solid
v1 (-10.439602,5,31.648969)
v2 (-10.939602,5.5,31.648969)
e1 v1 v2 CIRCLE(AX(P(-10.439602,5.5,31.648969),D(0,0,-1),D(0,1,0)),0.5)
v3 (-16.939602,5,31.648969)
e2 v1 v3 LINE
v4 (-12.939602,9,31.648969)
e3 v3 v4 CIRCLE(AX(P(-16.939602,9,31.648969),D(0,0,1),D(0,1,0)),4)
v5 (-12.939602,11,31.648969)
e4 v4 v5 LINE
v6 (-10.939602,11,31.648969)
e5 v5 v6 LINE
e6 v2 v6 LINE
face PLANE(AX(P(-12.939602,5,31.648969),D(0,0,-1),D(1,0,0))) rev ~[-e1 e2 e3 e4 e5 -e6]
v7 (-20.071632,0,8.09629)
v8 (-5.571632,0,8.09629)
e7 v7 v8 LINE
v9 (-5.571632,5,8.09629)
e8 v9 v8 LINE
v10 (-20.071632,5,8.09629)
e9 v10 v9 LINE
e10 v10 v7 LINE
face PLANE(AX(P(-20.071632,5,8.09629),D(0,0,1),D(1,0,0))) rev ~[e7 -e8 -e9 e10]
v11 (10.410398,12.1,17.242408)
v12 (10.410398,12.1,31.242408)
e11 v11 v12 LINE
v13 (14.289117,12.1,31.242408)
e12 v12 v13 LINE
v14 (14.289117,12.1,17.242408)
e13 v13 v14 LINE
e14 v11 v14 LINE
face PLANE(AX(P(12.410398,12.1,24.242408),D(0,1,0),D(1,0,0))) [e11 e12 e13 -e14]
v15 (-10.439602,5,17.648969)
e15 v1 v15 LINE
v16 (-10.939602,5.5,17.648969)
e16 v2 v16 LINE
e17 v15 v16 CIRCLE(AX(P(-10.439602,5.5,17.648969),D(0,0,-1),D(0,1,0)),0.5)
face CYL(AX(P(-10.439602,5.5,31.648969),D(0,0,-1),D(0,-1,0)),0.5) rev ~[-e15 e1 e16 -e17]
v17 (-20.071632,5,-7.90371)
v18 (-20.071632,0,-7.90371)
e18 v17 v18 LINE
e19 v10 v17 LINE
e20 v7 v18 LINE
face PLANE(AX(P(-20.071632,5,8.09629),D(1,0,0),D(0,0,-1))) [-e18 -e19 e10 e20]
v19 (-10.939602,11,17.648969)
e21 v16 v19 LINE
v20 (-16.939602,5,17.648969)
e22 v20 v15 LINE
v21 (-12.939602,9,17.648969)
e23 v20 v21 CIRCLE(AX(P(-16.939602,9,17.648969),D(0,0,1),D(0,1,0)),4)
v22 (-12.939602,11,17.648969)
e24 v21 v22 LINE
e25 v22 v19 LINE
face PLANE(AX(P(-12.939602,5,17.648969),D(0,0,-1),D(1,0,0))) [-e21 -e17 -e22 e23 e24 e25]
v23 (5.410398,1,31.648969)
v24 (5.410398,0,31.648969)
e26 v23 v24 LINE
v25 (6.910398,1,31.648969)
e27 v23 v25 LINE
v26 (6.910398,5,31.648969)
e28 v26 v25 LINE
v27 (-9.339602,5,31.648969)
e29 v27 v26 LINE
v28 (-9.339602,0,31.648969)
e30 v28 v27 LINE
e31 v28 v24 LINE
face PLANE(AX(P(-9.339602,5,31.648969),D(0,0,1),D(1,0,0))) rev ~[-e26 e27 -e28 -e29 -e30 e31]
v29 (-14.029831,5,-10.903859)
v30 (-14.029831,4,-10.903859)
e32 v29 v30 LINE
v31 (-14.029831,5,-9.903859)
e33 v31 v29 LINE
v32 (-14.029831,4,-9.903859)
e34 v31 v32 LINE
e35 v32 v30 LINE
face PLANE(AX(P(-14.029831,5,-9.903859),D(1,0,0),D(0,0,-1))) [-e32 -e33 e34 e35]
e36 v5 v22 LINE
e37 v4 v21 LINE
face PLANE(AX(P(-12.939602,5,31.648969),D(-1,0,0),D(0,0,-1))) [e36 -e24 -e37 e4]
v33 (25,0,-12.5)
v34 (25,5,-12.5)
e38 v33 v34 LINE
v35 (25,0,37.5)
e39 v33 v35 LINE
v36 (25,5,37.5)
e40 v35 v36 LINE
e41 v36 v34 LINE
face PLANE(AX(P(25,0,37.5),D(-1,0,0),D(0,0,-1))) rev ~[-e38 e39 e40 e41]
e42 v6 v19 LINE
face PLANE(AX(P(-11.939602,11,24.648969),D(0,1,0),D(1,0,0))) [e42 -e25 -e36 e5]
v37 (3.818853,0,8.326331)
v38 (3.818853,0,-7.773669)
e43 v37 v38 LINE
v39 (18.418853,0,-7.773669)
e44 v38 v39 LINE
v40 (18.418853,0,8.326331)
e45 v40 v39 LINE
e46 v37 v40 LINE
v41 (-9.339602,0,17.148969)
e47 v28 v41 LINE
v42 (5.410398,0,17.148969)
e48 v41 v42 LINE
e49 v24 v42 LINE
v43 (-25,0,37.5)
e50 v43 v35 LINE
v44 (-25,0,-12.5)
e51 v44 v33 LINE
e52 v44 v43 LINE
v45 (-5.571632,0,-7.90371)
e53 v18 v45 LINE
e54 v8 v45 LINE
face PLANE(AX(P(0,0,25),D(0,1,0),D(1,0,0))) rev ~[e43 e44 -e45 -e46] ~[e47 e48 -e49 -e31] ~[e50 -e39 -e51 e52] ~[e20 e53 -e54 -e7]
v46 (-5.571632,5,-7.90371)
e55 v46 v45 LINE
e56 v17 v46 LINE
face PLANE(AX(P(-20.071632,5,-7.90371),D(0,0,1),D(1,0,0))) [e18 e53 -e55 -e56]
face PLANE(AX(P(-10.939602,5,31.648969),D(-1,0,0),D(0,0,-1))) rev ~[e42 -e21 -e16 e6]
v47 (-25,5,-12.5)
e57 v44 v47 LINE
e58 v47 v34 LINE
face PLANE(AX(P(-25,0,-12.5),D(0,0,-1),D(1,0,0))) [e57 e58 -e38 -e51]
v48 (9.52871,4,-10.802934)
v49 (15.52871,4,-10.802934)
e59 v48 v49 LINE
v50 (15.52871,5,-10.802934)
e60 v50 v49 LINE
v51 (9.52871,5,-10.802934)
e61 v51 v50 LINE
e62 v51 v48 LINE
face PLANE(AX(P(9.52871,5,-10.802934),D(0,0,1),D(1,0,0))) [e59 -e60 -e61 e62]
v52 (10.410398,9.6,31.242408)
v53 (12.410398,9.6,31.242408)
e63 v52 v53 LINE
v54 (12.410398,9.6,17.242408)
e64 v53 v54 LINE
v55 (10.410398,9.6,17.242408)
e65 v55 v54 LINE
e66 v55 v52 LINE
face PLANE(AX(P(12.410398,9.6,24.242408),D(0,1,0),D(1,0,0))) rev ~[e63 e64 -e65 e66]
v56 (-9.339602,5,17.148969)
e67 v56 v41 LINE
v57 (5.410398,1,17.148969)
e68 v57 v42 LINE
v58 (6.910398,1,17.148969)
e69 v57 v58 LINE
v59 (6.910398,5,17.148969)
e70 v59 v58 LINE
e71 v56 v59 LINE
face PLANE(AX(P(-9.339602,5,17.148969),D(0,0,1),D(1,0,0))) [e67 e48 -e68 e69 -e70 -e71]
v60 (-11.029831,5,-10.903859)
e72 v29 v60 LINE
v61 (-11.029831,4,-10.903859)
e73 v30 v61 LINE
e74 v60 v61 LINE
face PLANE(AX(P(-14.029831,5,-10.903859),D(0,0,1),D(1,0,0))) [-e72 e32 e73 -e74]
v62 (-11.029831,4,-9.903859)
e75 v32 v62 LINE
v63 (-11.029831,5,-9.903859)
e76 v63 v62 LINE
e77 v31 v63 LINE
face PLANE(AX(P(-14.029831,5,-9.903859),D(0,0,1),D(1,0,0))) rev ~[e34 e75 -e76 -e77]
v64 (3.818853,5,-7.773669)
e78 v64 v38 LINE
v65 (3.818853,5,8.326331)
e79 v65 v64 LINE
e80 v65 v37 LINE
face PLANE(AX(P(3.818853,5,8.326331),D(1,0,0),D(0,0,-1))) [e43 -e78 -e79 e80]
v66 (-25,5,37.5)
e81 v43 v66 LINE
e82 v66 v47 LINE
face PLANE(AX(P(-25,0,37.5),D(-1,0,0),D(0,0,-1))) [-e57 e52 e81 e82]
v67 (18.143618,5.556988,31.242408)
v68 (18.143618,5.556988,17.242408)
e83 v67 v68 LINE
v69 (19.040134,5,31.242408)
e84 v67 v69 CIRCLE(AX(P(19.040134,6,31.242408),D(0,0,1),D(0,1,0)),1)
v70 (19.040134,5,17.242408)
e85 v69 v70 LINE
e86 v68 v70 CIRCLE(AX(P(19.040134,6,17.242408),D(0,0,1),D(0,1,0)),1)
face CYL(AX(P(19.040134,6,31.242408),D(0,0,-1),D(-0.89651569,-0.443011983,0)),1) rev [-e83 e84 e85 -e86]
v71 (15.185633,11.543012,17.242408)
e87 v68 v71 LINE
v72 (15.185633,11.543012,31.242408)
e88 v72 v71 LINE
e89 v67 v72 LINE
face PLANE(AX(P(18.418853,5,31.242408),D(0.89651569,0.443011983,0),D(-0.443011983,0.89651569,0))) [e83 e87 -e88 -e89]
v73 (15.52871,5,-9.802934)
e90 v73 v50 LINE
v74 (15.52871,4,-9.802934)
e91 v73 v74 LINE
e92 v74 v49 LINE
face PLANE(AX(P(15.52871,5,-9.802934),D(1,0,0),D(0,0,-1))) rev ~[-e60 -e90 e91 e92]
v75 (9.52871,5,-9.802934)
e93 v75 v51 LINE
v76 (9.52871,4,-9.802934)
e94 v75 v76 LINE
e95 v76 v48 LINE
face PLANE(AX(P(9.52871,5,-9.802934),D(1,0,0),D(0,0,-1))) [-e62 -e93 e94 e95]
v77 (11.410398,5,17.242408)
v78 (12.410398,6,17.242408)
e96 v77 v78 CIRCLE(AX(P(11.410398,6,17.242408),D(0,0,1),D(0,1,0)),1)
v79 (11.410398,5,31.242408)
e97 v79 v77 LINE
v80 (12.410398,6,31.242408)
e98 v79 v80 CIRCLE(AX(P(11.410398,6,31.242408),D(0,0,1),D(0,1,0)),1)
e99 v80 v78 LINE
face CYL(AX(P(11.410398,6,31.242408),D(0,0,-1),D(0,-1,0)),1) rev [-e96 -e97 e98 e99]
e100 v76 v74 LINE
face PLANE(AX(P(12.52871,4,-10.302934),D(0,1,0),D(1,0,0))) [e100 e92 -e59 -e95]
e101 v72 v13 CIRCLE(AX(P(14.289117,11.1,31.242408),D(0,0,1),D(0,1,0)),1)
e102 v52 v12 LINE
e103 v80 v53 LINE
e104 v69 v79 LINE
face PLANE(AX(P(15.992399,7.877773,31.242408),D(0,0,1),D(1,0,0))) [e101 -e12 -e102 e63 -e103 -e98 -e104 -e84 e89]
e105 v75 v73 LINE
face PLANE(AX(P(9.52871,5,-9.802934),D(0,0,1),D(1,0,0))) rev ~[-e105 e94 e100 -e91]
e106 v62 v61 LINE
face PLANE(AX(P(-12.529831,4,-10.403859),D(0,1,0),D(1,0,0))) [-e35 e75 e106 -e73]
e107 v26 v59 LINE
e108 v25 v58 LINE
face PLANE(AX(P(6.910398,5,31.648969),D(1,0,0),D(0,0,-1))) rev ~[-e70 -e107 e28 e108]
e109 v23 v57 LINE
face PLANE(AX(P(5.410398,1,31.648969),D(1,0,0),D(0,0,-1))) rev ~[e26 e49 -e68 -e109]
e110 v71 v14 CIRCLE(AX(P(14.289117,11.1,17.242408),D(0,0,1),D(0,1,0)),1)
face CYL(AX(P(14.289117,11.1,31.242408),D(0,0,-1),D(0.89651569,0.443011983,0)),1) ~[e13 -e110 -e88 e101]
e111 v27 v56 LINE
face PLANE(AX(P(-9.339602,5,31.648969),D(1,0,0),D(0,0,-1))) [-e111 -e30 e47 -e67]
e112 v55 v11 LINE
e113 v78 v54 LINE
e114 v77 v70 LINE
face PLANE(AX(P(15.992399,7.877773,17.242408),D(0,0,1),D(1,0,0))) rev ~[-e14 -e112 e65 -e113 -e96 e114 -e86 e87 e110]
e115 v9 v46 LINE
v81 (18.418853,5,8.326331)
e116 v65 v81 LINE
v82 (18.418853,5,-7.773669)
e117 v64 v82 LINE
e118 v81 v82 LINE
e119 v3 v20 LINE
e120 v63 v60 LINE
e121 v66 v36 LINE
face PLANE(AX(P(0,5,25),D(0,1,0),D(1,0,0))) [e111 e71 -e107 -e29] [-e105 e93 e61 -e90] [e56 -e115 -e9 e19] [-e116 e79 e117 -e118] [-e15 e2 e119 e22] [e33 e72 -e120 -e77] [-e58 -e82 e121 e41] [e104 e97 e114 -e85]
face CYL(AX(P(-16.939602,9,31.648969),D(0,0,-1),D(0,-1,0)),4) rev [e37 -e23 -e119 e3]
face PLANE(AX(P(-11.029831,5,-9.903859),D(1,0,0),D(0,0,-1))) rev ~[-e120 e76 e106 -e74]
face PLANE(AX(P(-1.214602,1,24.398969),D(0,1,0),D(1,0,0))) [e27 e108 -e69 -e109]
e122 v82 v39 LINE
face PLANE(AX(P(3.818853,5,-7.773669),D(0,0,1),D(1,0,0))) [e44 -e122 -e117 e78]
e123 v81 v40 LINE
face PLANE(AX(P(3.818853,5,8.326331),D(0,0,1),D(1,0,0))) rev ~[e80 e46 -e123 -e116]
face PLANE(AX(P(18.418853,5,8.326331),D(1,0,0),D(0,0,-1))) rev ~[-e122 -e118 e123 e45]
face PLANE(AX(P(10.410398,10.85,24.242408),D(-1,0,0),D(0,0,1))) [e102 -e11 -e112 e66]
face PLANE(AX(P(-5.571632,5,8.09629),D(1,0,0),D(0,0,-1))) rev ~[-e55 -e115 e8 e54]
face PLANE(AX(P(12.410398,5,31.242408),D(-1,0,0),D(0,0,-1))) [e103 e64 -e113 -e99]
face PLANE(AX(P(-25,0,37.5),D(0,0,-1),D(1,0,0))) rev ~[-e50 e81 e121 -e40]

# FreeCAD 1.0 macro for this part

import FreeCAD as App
import Part
import Sketcher
Q = App.Units.Quantity


def edges_at(feature, points):
    """Names of the edges that pass closest to the given points."""
    edges = feature.Shape.Edges
    near = lambda p: min(range(len(edges)), key=lambda i: edges[i].distToShape(Part.Vertex(*p))[0])
    return sorted({f"Edge{near(p) + 1}" for p in points})


def add_polygon(sketch, points):
    """Adds a closed chain of lines whose ends are joined by coincident constraints."""
    first, n = sketch.GeometryCount, len(points)
    for a, b in zip(points, points[1:] + points[:1]):
        sketch.addGeometry(Part.LineSegment(App.Vector(*a, 0), App.Vector(*b, 0)), False)
    for i in range(n):
        sketch.addConstraint(Sketcher.Constraint("Coincident", first + i, 2, first + (i + 1) % n, 1))

doc = App.newDocument("Part")
body = doc.addObject("PartDesign::Body", "Body")

# Sketch on XZ plane
sketch1 = doc.addObject("Sketcher::SketchObject", "Sketch")
body.addObject(sketch1)
sketch1.AttachmentSupport = (doc.XZ_Plane, [""])
sketch1.MapMode = "FlatFace"
add_polygon(sketch1, [(-25, -12), (-25, 12), (25, 12), (25, -12)])  # lines 0-3
sketch1.addConstraint([
    Sketcher.Constraint("Vertical", 0),
    Sketcher.Constraint("Horizontal", 1),
    Sketcher.Constraint("Vertical", 2),
    Sketcher.Constraint("Horizontal", 3),
    Sketcher.Constraint("Symmetric", 0, 2, 2, 2, -1, 1),
    Sketcher.Constraint("DistanceX", 1, 1, 1, 2, Q("50 mm")),
    Sketcher.Constraint("DistanceY", 0, 1, 0, 2, Q("25 mm")),
])
pad1 = doc.addObject("PartDesign::Pad", "Pad")
body.addObject(pad1)
pad1.Profile = sketch1
pad1.Length = 5
pad1.Reversed = True

# Sketch on XZ plane
sketch2 = doc.addObject("Sketcher::SketchObject", "Sketch001")
body.addObject(sketch2)
sketch2.AttachmentSupport = (doc.XZ_Plane, [""])
sketch2.MapMode = "FlatFace"
sketch2.AttachmentOffset = App.Placement(App.Vector(0, 0, -5), App.Rotation())
add_polygon(sketch2, [(-20, -8), (-20, 8), (-6, 8), (-6, -8)])  # lines 0-3
sketch2.addConstraint([
    Sketcher.Constraint("Vertical", 0),
    Sketcher.Constraint("Horizontal", 1),
    Sketcher.Constraint("Vertical", 2),
    Sketcher.Constraint("Horizontal", 3),
    Sketcher.Constraint("DistanceY", 0, 1, 0, 2, Q("16 mm")),
    Sketcher.Constraint("DistanceX", 1, 1, 1, 2, Q("14.5 mm")),
    Sketcher.Constraint("DistanceY", -1, 1, 0, 2, Q("8.09629 mm")),
    Sketcher.Constraint("DistanceX", 0, 2, -1, 1, Q("20.071632 mm")),
])
pocket1 = doc.addObject("PartDesign::Pocket", "Pocket")
body.addObject(pocket1)
pocket1.Profile = sketch2
pocket1.Length = 5
pocket1.Reversed = True

# Sketch on XZ plane
sketch3 = doc.addObject("Sketcher::SketchObject", "Sketch002")
body.addObject(sketch3)
sketch3.AttachmentSupport = (doc.XZ_Plane, [""])
sketch3.MapMode = "FlatFace"
sketch3.AttachmentOffset = App.Placement(App.Vector(0, 0, -5), App.Rotation())
add_polygon(sketch3, [(4, -8), (4, 8), (18, 8), (18, -8)])  # lines 0-3
sketch3.addConstraint([
    Sketcher.Constraint("Vertical", 0),
    Sketcher.Constraint("Horizontal", 1),
    Sketcher.Constraint("Vertical", 2),
    Sketcher.Constraint("Horizontal", 3),
    Sketcher.Constraint("DistanceX", 1, 1, 1, 2, Q("14.6 mm")),
    Sketcher.Constraint("DistanceY", 0, 1, 0, 2, Q("16.1 mm")),
    Sketcher.Constraint("DistanceY", -1, 1, 0, 2, Q("8.326331 mm")),
    Sketcher.Constraint("DistanceX", -1, 1, 0, 2, Q("3.818853 mm")),
])
pocket2 = doc.addObject("PartDesign::Pocket", "Pocket001")
body.addObject(pocket2)
pocket2.Profile = sketch3
pocket2.Length = 5
pocket2.Reversed = True

# Sketch on XZ plane
sketch4 = doc.addObject("Sketcher::SketchObject", "Sketch003")
body.addObject(sketch4)
sketch4.AttachmentSupport = (doc.XZ_Plane, [""])
sketch4.MapMode = "FlatFace"
sketch4.AttachmentOffset = App.Placement(App.Vector(0, 0, -5), App.Rotation())
add_polygon(sketch4, [(-14, -10.9), (-14, -9.9), (-11, -9.9), (-11, -10.9)])  # lines 0-3
add_polygon(sketch4, [(9.5, -10.8), (9.5, -9.8), (15.5, -9.8), (15.5, -10.8)])  # lines 4-7
sketch4.addConstraint([
    Sketcher.Constraint("Vertical", 0),
    Sketcher.Constraint("Horizontal", 1),
    Sketcher.Constraint("Vertical", 2),
    Sketcher.Constraint("Horizontal", 3),
    Sketcher.Constraint("Vertical", 4),
    Sketcher.Constraint("Horizontal", 5),
    Sketcher.Constraint("Vertical", 6),
    Sketcher.Constraint("Horizontal", 7),
    Sketcher.Constraint("Equal", 2, 4),
    Sketcher.Constraint("DistanceX", 1, 1, 1, 2, Q("3 mm")),
    Sketcher.Constraint("DistanceX", 5, 1, 5, 2, Q("6 mm")),
    Sketcher.Constraint("DistanceY", 0, 1, 0, 2, Q("1 mm")),
    Sketcher.Constraint("DistanceX", 0, 2, -1, 1, Q("14.029831 mm")),
    Sketcher.Constraint("DistanceY", 0, 2, -1, 1, Q("9.903859 mm")),
    Sketcher.Constraint("DistanceX", -1, 1, 4, 2, Q("9.52871 mm")),
    Sketcher.Constraint("DistanceY", 4, 2, -1, 1, Q("9.802934 mm")),
])
pocket3 = doc.addObject("PartDesign::Pocket", "Pocket002")
body.addObject(pocket3)
pocket3.Profile = sketch4
pocket3.Length = 1
pocket3.Reversed = True

# Sketch on XZ plane
sketch5 = doc.addObject("Sketcher::SketchObject", "Sketch004")
body.addObject(sketch5)
sketch5.AttachmentSupport = (doc.XZ_Plane, [""])
sketch5.MapMode = "FlatFace"
add_polygon(sketch5, [(-25, 12), (-25, 38), (25, 38), (25, 12)])  # lines 0-3
sketch5.addConstraint([
    Sketcher.Constraint("Vertical", 0),
    Sketcher.Constraint("Horizontal", 1),
    Sketcher.Constraint("Vertical", 2),
    Sketcher.Constraint("Horizontal", 3),
    Sketcher.Constraint("DistanceX", 1, 1, 1, 2, Q("50 mm")),
    Sketcher.Constraint("DistanceY", 0, 1, 0, 2, Q("25 mm")),
    Sketcher.Constraint("DistanceX", 0, 2, -1, 1, Q("25 mm")),
    Sketcher.Constraint("DistanceY", -1, 1, 0, 2, Q("37.5 mm")),
])
pad2 = doc.addObject("PartDesign::Pad", "Pad001")
body.addObject(pad2)
pad2.Profile = sketch5
pad2.Length = 5
pad2.Reversed = True

# Sketch on XZ plane
sketch6 = doc.addObject("Sketcher::SketchObject", "Sketch005")
body.addObject(sketch6)
sketch6.AttachmentSupport = (doc.XZ_Plane, [""])
sketch6.MapMode = "FlatFace"
sketch6.AttachmentOffset = App.Placement(App.Vector(0, 0, -5), App.Rotation())
add_polygon(sketch6, [(-9, 17), (-9, 32), (7, 32), (7, 17)])  # lines 0-3
sketch6.addConstraint([
    Sketcher.Constraint("Vertical", 0),
    Sketcher.Constraint("Horizontal", 1),
    Sketcher.Constraint("Vertical", 2),
    Sketcher.Constraint("Horizontal", 3),
    Sketcher.Constraint("DistanceY", 0, 1, 0, 2, Q("14.5 mm")),
    Sketcher.Constraint("DistanceX", 1, 1, 1, 2, Q("16.25 mm")),
    Sketcher.Constraint("DistanceX", 0, 2, -1, 1, Q("9.339602 mm")),
    Sketcher.Constraint("DistanceY", -1, 1, 0, 2, Q("31.648969 mm")),
])
pocket4 = doc.addObject("PartDesign::Pocket", "Pocket003")
body.addObject(pocket4)
pocket4.Profile = sketch6
pocket4.Length = 4
pocket4.Reversed = True

# Sketch on XZ plane
sketch7 = doc.addObject("Sketcher::SketchObject", "Sketch006")
body.addObject(sketch7)
sketch7.AttachmentSupport = (doc.XZ_Plane, [""])
sketch7.MapMode = "FlatFace"
sketch7.AttachmentOffset = App.Placement(App.Vector(0, 0, -1), App.Rotation())
add_polygon(sketch7, [(-9, 17), (-9, 32), (5, 32), (5, 17)])  # lines 0-3
sketch7.addConstraint([
    Sketcher.Constraint("Vertical", 0),
    Sketcher.Constraint("Horizontal", 1),
    Sketcher.Constraint("Vertical", 2),
    Sketcher.Constraint("Horizontal", 3),
    Sketcher.Constraint("DistanceY", 0, 1, 0, 2, Q("14.5 mm")),
    Sketcher.Constraint("DistanceX", 1, 1, 1, 2, Q("14.75 mm")),
    Sketcher.Constraint("DistanceX", 0, 2, -1, 1, Q("9.339602 mm")),
    Sketcher.Constraint("DistanceY", -1, 1, 0, 2, Q("31.648969 mm")),
])
pocket5 = doc.addObject("PartDesign::Pocket", "Pocket004")
body.addObject(pocket5)
pocket5.Profile = sketch7
pocket5.Length = 1
pocket5.Reversed = True

# Sketch on XZ plane
sketch8 = doc.addObject("Sketcher::SketchObject", "Sketch007")
body.addObject(sketch8)
sketch8.AttachmentSupport = (doc.XZ_Plane, [""])
sketch8.MapMode = "FlatFace"
sketch8.AttachmentOffset = App.Placement(App.Vector(0, 0, -5), App.Rotation())
add_polygon(sketch8, [(12.4, 17.2), (12.4, 31.2), (14.9, 31.2), (14.9, 17.2)])  # lines 0-3
sketch8.addConstraint([
    Sketcher.Constraint("Vertical", 0),
    Sketcher.Constraint("Horizontal", 1),
    Sketcher.Constraint("Vertical", 2),
    Sketcher.Constraint("Horizontal", 3),
    Sketcher.Constraint("DistanceY", 0, 1, 0, 2, Q("14 mm")),
    Sketcher.Constraint("DistanceX", 1, 1, 1, 2, Q("2.5 mm")),
    Sketcher.Constraint("DistanceX", -1, 1, 0, 2, Q("12.410398 mm")),
    Sketcher.Constraint("DistanceY", -1, 1, 0, 2, Q("31.242408 mm")),
])
pad3 = doc.addObject("PartDesign::Pad", "Pad002")
body.addObject(pad3)
pad3.Profile = sketch8
pad3.Length = 4.6
pad3.Reversed = True

# Sketch on XZ plane
sketch9 = doc.addObject("Sketcher::SketchObject", "Sketch008")
body.addObject(sketch9)
sketch9.AttachmentSupport = (doc.XZ_Plane, [""])
sketch9.MapMode = "FlatFace"
sketch9.AttachmentOffset = App.Placement(App.Vector(0, 0, -9.6), App.Rotation())
add_polygon(sketch9, [(10, 17), (10, 31), (15, 31), (15, 17)])  # lines 0-3
sketch9.addConstraint([
    Sketcher.Constraint("Vertical", 0),
    Sketcher.Constraint("Horizontal", 1),
    Sketcher.Constraint("Vertical", 2),
    Sketcher.Constraint("Horizontal", 3),
    Sketcher.Constraint("DistanceX", 1, 1, 1, 2, Q("5 mm")),
    Sketcher.Constraint("DistanceY", 0, 1, 0, 2, Q("14 mm")),
    Sketcher.Constraint("DistanceX", -1, 1, 0, 2, Q("9.910398 mm")),
    Sketcher.Constraint("DistanceY", -1, 1, 0, 2, Q("31.242408 mm")),
])
pad4 = doc.addObject("PartDesign::Pad", "Pad003")
body.addObject(pad4)
pad4.Profile = sketch9
pad4.Length = 2.5
pad4.Reversed = True

# Sketch on XY plane
sketch10 = doc.addObject("Sketcher::SketchObject", "Sketch009")
body.addObject(sketch10)
sketch10.AttachmentSupport = (doc.XY_Plane, [""])
sketch10.MapMode = "FlatFace"
sketch10.AttachmentOffset = App.Placement(App.Vector(0, 0, 31.242408), App.Rotation())
add_polygon(sketch10, [(14.9, 5), (18.4, 5), (14.9, 12.1)])  # lines 0-2
sketch10.addConstraint([
    Sketcher.Constraint("Horizontal", 0),
    Sketcher.Constraint("Vertical", 2),
    Sketcher.Constraint("DistanceY", 2, 2, 2, 1, Q("7.1 mm")),
    Sketcher.Constraint("DistanceY", -1, 1, 0, 2, Q("5 mm")),
    Sketcher.Constraint("DistanceX", -1, 1, 1, 2, Q("14.910398 mm")),
    Sketcher.Constraint("Distance", 1, Q("7.919549 mm")),
])
pad5 = doc.addObject("PartDesign::Pad", "Pad004")
body.addObject(pad5)
pad5.Profile = sketch10
pad5.Length = 14
pad5.Reversed = True
doc.recompute()

fillet = doc.addObject("PartDesign::Fillet", "Fillet")
body.addObject(fillet)
fillet.Base = (pad5, edges_at(pad5, [(14.91, 12.1, 24.242), (18.419, 5, 24.242)]))
fillet.Radius = 1

# Sketch on XZ plane
sketch11 = doc.addObject("Sketcher::SketchObject", "Sketch010")
body.addObject(sketch11)
sketch11.AttachmentSupport = (doc.XZ_Plane, [""])
sketch11.MapMode = "FlatFace"
sketch11.AttachmentOffset = App.Placement(App.Vector(0, 0, -5), App.Rotation())
add_polygon(sketch11, [(-12.9, 17.6), (-12.9, 31.6), (-10.9, 31.6), (-10.9, 17.6)])  # lines 0-3
sketch11.addConstraint([
    Sketcher.Constraint("Vertical", 0),
    Sketcher.Constraint("Horizontal", 1),
    Sketcher.Constraint("Vertical", 2),
    Sketcher.Constraint("Horizontal", 3),
    Sketcher.Constraint("DistanceX", 1, 1, 1, 2, Q("2 mm")),
    Sketcher.Constraint("DistanceY", 0, 1, 0, 2, Q("14 mm")),
    Sketcher.Constraint("DistanceX", 0, 2, -1, 1, Q("12.939602 mm")),
    Sketcher.Constraint("DistanceY", -1, 1, 0, 2, Q("31.648969 mm")),
])
pad6 = doc.addObject("PartDesign::Pad", "Pad005")
body.addObject(pad6)
pad6.Profile = sketch11
pad6.Length = 6
pad6.Reversed = True
doc.recompute()

fillet2 = doc.addObject("PartDesign::Fillet", "Fillet001")
body.addObject(fillet2)
fillet2.Base = (pad6, edges_at(pad6, [(-12.94, 5, 24.649)]))
fillet2.Radius = 4
doc.recompute()

fillet3 = doc.addObject("PartDesign::Fillet", "Fillet002")
body.addObject(fillet3)
fillet3.Base = (fillet2, edges_at(fillet2, [(12.41, 5, 24.242)]))
fillet3.Radius = 1
doc.recompute()

fillet4 = doc.addObject("PartDesign::Fillet", "Fillet003")
body.addObject(fillet4)
fillet4.Base = (fillet3, edges_at(fillet3, [(-10.94, 5, 24.649)]))
fillet4.Radius = 0.5

# Sketch on YZ plane
sketch12 = doc.addObject("Sketcher::SketchObject", "Sketch011")
body.addObject(sketch12)
sketch12.AttachmentSupport = (doc.YZ_Plane, [""])
sketch12.MapMode = "FlatFace"
sketch12.AttachmentOffset = App.Placement(App.Vector(0, 0, 9.910398), App.Rotation())
add_polygon(sketch12, [(12.1, 17.2), (9.6, 17.2), (9.6, 31.2), (12.1, 31.2)])  # lines 0-3
sketch12.addConstraint([
    Sketcher.Constraint("Horizontal", 0),
    Sketcher.Constraint("Vertical", 1),
    Sketcher.Constraint("Horizontal", 2),
    Sketcher.Constraint("Vertical", 3),
    Sketcher.Constraint("DistanceY", 1, 1, 1, 2, Q("14 mm")),
    Sketcher.Constraint("DistanceX", 0, 2, 0, 1, Q("2.5 mm")),
    Sketcher.Constraint("DistanceX", -1, 1, 0, 2, Q("9.6 mm")),
    Sketcher.Constraint("DistanceY", -1, 1, 0, 2, Q("17.242408 mm")),
])
pocket6 = doc.addObject("PartDesign::Pocket", "Pocket005")
body.addObject(pocket6)
pocket6.Profile = sketch12
pocket6.Length = 0.5
pocket6.Reversed = True

doc.recompute()
